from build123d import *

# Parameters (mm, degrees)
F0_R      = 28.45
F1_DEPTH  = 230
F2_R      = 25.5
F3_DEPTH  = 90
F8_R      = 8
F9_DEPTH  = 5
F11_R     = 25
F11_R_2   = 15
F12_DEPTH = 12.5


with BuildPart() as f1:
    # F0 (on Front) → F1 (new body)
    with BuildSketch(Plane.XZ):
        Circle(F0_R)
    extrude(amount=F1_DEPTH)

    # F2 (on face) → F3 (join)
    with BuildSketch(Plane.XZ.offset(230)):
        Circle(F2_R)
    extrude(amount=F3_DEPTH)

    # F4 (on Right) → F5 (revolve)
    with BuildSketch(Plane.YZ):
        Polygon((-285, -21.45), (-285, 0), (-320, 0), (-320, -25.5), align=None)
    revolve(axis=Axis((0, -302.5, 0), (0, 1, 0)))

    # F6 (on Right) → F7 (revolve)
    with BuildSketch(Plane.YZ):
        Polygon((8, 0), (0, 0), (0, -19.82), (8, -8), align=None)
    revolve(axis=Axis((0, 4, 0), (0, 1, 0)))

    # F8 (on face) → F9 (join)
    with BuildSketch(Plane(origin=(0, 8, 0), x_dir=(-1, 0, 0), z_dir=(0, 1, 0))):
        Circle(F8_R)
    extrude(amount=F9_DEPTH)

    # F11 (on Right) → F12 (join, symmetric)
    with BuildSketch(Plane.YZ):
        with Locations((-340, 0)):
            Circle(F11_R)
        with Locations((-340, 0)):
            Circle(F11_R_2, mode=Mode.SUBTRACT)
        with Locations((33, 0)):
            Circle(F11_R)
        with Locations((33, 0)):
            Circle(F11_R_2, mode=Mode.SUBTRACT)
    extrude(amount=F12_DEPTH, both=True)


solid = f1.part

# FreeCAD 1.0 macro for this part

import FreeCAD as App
import Part
import Sketcher

V = App.Vector
Q = App.Units.Quantity

doc = App.newDocument("Part")
body = doc.addObject("PartDesign::Body", "Body")

# Sketch on XZ plane
sketch1 = body.newObject("Sketcher::SketchObject", "Sketch")
sketch1.AttachmentSupport = (doc.getObject("XZ_Plane"), [""])
sketch1.MapMode = "FlatFace"
sketch1.addGeometry(Part.Circle(V(0, 0, 0), V(0, 0, 1), 28), False)
sketch1.addConstraint(Sketcher.Constraint("Coincident", 0, 3, -1, 1))
sketch1.addConstraint(Sketcher.Constraint("Diameter", 0, Q("56.9 mm")))
pad1 = body.newObject("PartDesign::Pad", "Pad")
pad1.Profile = sketch1
pad1.Length = 230

# Sketch on XZ plane
sketch2 = body.newObject("Sketcher::SketchObject", "Sketch001")
sketch2.AttachmentSupport = (doc.getObject("XZ_Plane"), [""])
sketch2.MapMode = "FlatFace"
sketch2.AttachmentOffset = App.Placement(V(0, 0, 230), App.Rotation())
sketch2.addGeometry(Part.Circle(V(0, 0, 0), V(0, 0, 1), 26), False)
sketch2.addConstraint(Sketcher.Constraint("Coincident", 0, 3, -1, 1))
sketch2.addConstraint(Sketcher.Constraint("Diameter", 0, Q("51 mm")))
pad2 = body.newObject("PartDesign::Pad", "Pad001")
pad2.Profile = sketch2
pad2.Length = 90

# Sketch on YZ plane
sketch3 = body.newObject("Sketcher::SketchObject", "Sketch002")
sketch3.AttachmentSupport = (doc.getObject("YZ_Plane"), [""])
sketch3.MapMode = "FlatFace"
sketch3.addGeometry(Part.LineSegment(V(-285, -21, 0), V(-285, 0, 0)), False)
sketch3.addGeometry(Part.LineSegment(V(-285, 0, 0), V(-320, 0, 0)), False)
sketch3.addGeometry(Part.LineSegment(V(-320, 0, 0), V(-320, -26, 0)), False)
sketch3.addGeometry(Part.LineSegment(V(-320, -26, 0), V(-285, -21, 0)), False)
sketch3.addConstraint(Sketcher.Constraint("Coincident", 0, 2, 1, 1))
sketch3.addConstraint(Sketcher.Constraint("Coincident", 1, 2, 2, 1))
sketch3.addConstraint(Sketcher.Constraint("Coincident", 2, 2, 3, 1))
sketch3.addConstraint(Sketcher.Constraint("Coincident", 3, 2, 0, 1))
sketch3.addConstraint(Sketcher.Constraint("Vertical", 0))
sketch3.addConstraint(Sketcher.Constraint("Horizontal", 1))
sketch3.addConstraint(Sketcher.Constraint("Vertical", 2))
sketch3.addConstraint(Sketcher.Constraint("PointOnObject", 0, 2, -1))
sketch3.addConstraint(Sketcher.Constraint("DistanceX", 1, 2, 1, 1, Q("35 mm")))
sketch3.addConstraint(Sketcher.Constraint("DistanceY", 2, 2, 2, 1, Q("25.5 mm")))
sketch3.addConstraint(Sketcher.Constraint("DistanceX", 0, 2, -1, 1, Q("285 mm")))
sketch3.addConstraint(Sketcher.Constraint("DistanceY", 0, 1, 0, 2, Q("21.45 mm")))
revolution = body.newObject("PartDesign::Revolution", "Revolution")
revolution.Profile = sketch3
revolution.ReferenceAxis = (sketch3, ["H_Axis"])
revolution.Angle = 360

# Sketch on YZ plane
sketch4 = body.newObject("Sketcher::SketchObject", "Sketch003")
sketch4.AttachmentSupport = (doc.getObject("YZ_Plane"), [""])
sketch4.MapMode = "FlatFace"
sketch4.addGeometry(Part.LineSegment(V(8, 0, 0), V(0, 0, 0)), False)
sketch4.addGeometry(Part.LineSegment(V(0, 0, 0), V(0, -20, 0)), False)
sketch4.addGeometry(Part.LineSegment(V(0, -20, 0), V(8, -8, 0)), False)
sketch4.addGeometry(Part.LineSegment(V(8, -8, 0), V(8, 0, 0)), False)
sketch4.addConstraint(Sketcher.Constraint("Coincident", 0, 2, 1, 1))
sketch4.addConstraint(Sketcher.Constraint("Coincident", 1, 2, 2, 1))
sketch4.addConstraint(Sketcher.Constraint("Coincident", 2, 2, 3, 1))
sketch4.addConstraint(Sketcher.Constraint("Coincident", 3, 2, 0, 1))
sketch4.addConstraint(Sketcher.Constraint("Horizontal", 0))
sketch4.addConstraint(Sketcher.Constraint("Vertical", 1))
sketch4.addConstraint(Sketcher.Constraint("Vertical", 3))
sketch4.addConstraint(Sketcher.Constraint("Coincident", 0, 2, -1, 1))
sketch4.addConstraint(Sketcher.Constraint("Equal", 0, 3))
sketch4.addConstraint(Sketcher.Constraint("DistanceX", 0, 2, 0, 1, Q("8 mm")))
sketch4.addConstraint(Sketcher.Constraint("DistanceY", 1, 2, 1, 1, Q("19.82 mm")))
revolution2 = body.newObject("PartDesign::Revolution", "Revolution001")
revolution2.Profile = sketch4
revolution2.ReferenceAxis = (sketch4, ["H_Axis"])
revolution2.Angle = 360

# Sketch on XZ plane
sketch5 = body.newObject("Sketcher::SketchObject", "Sketch004")
sketch5.AttachmentSupport = (doc.getObject("XZ_Plane"), [""])
sketch5.MapMode = "FlatFace"
sketch5.AttachmentOffset = App.Placement(V(0, 0, -8), App.Rotation())
sketch5.addGeometry(Part.Circle(V(0, 0, 0), V(0, 0, 1), 8), False)
sketch5.addConstraint(Sketcher.Constraint("Coincident", 0, 3, -1, 1))
sketch5.addConstraint(Sketcher.Constraint("Diameter", 0, Q("16 mm")))
pad3 = body.newObject("PartDesign::Pad", "Pad002")
pad3.Profile = sketch5
pad3.Length = 5
pad3.Reversed = True

# Sketch on YZ plane
sketch6 = body.newObject("Sketcher::SketchObject", "Sketch005")
sketch6.AttachmentSupport = (doc.getObject("YZ_Plane"), [""])
sketch6.MapMode = "FlatFace"
sketch6.addGeometry(Part.Circle(V(-340, 0, 0), V(0, 0, 1), 25), False)
sketch6.addGeometry(Part.Circle(V(-340, 0, 0), V(0, 0, 1), 15), False)
sketch6.addGeometry(Part.Circle(V(33, 0, 0), V(0, 0, 1), 25), False)
sketch6.addGeometry(Part.Circle(V(33, 0, 0), V(0, 0, 1), 15), False)
sketch6.addConstraint(Sketcher.Constraint("Coincident", 1, 3, 0, 3))
sketch6.addConstraint(Sketcher.Constraint("Coincident", 3, 3, 2, 3))
sketch6.addConstraint(Sketcher.Constraint("Equal", 0, 2))
sketch6.addConstraint(Sketcher.Constraint("Equal", 1, 3))
sketch6.addConstraint(Sketcher.Constraint("PointOnObject", 0, 3, -1))
sketch6.addConstraint(Sketcher.Constraint("PointOnObject", 2, 3, -1))
sketch6.addConstraint(Sketcher.Constraint("Diameter", 0, Q("50 mm")))
sketch6.addConstraint(Sketcher.Constraint("Diameter", 1, Q("30 mm")))
sketch6.addConstraint(Sketcher.Constraint("DistanceX", 0, 3, -1, 1, Q("340 mm")))
sketch6.addConstraint(Sketcher.Constraint("DistanceX", -1, 1, 2, 3, Q("33 mm")))
pad4 = body.newObject("PartDesign::Pad", "Pad003")
pad4.Profile = sketch6
pad4.Length = 25
pad4.Midplane = True

doc.recompute()
